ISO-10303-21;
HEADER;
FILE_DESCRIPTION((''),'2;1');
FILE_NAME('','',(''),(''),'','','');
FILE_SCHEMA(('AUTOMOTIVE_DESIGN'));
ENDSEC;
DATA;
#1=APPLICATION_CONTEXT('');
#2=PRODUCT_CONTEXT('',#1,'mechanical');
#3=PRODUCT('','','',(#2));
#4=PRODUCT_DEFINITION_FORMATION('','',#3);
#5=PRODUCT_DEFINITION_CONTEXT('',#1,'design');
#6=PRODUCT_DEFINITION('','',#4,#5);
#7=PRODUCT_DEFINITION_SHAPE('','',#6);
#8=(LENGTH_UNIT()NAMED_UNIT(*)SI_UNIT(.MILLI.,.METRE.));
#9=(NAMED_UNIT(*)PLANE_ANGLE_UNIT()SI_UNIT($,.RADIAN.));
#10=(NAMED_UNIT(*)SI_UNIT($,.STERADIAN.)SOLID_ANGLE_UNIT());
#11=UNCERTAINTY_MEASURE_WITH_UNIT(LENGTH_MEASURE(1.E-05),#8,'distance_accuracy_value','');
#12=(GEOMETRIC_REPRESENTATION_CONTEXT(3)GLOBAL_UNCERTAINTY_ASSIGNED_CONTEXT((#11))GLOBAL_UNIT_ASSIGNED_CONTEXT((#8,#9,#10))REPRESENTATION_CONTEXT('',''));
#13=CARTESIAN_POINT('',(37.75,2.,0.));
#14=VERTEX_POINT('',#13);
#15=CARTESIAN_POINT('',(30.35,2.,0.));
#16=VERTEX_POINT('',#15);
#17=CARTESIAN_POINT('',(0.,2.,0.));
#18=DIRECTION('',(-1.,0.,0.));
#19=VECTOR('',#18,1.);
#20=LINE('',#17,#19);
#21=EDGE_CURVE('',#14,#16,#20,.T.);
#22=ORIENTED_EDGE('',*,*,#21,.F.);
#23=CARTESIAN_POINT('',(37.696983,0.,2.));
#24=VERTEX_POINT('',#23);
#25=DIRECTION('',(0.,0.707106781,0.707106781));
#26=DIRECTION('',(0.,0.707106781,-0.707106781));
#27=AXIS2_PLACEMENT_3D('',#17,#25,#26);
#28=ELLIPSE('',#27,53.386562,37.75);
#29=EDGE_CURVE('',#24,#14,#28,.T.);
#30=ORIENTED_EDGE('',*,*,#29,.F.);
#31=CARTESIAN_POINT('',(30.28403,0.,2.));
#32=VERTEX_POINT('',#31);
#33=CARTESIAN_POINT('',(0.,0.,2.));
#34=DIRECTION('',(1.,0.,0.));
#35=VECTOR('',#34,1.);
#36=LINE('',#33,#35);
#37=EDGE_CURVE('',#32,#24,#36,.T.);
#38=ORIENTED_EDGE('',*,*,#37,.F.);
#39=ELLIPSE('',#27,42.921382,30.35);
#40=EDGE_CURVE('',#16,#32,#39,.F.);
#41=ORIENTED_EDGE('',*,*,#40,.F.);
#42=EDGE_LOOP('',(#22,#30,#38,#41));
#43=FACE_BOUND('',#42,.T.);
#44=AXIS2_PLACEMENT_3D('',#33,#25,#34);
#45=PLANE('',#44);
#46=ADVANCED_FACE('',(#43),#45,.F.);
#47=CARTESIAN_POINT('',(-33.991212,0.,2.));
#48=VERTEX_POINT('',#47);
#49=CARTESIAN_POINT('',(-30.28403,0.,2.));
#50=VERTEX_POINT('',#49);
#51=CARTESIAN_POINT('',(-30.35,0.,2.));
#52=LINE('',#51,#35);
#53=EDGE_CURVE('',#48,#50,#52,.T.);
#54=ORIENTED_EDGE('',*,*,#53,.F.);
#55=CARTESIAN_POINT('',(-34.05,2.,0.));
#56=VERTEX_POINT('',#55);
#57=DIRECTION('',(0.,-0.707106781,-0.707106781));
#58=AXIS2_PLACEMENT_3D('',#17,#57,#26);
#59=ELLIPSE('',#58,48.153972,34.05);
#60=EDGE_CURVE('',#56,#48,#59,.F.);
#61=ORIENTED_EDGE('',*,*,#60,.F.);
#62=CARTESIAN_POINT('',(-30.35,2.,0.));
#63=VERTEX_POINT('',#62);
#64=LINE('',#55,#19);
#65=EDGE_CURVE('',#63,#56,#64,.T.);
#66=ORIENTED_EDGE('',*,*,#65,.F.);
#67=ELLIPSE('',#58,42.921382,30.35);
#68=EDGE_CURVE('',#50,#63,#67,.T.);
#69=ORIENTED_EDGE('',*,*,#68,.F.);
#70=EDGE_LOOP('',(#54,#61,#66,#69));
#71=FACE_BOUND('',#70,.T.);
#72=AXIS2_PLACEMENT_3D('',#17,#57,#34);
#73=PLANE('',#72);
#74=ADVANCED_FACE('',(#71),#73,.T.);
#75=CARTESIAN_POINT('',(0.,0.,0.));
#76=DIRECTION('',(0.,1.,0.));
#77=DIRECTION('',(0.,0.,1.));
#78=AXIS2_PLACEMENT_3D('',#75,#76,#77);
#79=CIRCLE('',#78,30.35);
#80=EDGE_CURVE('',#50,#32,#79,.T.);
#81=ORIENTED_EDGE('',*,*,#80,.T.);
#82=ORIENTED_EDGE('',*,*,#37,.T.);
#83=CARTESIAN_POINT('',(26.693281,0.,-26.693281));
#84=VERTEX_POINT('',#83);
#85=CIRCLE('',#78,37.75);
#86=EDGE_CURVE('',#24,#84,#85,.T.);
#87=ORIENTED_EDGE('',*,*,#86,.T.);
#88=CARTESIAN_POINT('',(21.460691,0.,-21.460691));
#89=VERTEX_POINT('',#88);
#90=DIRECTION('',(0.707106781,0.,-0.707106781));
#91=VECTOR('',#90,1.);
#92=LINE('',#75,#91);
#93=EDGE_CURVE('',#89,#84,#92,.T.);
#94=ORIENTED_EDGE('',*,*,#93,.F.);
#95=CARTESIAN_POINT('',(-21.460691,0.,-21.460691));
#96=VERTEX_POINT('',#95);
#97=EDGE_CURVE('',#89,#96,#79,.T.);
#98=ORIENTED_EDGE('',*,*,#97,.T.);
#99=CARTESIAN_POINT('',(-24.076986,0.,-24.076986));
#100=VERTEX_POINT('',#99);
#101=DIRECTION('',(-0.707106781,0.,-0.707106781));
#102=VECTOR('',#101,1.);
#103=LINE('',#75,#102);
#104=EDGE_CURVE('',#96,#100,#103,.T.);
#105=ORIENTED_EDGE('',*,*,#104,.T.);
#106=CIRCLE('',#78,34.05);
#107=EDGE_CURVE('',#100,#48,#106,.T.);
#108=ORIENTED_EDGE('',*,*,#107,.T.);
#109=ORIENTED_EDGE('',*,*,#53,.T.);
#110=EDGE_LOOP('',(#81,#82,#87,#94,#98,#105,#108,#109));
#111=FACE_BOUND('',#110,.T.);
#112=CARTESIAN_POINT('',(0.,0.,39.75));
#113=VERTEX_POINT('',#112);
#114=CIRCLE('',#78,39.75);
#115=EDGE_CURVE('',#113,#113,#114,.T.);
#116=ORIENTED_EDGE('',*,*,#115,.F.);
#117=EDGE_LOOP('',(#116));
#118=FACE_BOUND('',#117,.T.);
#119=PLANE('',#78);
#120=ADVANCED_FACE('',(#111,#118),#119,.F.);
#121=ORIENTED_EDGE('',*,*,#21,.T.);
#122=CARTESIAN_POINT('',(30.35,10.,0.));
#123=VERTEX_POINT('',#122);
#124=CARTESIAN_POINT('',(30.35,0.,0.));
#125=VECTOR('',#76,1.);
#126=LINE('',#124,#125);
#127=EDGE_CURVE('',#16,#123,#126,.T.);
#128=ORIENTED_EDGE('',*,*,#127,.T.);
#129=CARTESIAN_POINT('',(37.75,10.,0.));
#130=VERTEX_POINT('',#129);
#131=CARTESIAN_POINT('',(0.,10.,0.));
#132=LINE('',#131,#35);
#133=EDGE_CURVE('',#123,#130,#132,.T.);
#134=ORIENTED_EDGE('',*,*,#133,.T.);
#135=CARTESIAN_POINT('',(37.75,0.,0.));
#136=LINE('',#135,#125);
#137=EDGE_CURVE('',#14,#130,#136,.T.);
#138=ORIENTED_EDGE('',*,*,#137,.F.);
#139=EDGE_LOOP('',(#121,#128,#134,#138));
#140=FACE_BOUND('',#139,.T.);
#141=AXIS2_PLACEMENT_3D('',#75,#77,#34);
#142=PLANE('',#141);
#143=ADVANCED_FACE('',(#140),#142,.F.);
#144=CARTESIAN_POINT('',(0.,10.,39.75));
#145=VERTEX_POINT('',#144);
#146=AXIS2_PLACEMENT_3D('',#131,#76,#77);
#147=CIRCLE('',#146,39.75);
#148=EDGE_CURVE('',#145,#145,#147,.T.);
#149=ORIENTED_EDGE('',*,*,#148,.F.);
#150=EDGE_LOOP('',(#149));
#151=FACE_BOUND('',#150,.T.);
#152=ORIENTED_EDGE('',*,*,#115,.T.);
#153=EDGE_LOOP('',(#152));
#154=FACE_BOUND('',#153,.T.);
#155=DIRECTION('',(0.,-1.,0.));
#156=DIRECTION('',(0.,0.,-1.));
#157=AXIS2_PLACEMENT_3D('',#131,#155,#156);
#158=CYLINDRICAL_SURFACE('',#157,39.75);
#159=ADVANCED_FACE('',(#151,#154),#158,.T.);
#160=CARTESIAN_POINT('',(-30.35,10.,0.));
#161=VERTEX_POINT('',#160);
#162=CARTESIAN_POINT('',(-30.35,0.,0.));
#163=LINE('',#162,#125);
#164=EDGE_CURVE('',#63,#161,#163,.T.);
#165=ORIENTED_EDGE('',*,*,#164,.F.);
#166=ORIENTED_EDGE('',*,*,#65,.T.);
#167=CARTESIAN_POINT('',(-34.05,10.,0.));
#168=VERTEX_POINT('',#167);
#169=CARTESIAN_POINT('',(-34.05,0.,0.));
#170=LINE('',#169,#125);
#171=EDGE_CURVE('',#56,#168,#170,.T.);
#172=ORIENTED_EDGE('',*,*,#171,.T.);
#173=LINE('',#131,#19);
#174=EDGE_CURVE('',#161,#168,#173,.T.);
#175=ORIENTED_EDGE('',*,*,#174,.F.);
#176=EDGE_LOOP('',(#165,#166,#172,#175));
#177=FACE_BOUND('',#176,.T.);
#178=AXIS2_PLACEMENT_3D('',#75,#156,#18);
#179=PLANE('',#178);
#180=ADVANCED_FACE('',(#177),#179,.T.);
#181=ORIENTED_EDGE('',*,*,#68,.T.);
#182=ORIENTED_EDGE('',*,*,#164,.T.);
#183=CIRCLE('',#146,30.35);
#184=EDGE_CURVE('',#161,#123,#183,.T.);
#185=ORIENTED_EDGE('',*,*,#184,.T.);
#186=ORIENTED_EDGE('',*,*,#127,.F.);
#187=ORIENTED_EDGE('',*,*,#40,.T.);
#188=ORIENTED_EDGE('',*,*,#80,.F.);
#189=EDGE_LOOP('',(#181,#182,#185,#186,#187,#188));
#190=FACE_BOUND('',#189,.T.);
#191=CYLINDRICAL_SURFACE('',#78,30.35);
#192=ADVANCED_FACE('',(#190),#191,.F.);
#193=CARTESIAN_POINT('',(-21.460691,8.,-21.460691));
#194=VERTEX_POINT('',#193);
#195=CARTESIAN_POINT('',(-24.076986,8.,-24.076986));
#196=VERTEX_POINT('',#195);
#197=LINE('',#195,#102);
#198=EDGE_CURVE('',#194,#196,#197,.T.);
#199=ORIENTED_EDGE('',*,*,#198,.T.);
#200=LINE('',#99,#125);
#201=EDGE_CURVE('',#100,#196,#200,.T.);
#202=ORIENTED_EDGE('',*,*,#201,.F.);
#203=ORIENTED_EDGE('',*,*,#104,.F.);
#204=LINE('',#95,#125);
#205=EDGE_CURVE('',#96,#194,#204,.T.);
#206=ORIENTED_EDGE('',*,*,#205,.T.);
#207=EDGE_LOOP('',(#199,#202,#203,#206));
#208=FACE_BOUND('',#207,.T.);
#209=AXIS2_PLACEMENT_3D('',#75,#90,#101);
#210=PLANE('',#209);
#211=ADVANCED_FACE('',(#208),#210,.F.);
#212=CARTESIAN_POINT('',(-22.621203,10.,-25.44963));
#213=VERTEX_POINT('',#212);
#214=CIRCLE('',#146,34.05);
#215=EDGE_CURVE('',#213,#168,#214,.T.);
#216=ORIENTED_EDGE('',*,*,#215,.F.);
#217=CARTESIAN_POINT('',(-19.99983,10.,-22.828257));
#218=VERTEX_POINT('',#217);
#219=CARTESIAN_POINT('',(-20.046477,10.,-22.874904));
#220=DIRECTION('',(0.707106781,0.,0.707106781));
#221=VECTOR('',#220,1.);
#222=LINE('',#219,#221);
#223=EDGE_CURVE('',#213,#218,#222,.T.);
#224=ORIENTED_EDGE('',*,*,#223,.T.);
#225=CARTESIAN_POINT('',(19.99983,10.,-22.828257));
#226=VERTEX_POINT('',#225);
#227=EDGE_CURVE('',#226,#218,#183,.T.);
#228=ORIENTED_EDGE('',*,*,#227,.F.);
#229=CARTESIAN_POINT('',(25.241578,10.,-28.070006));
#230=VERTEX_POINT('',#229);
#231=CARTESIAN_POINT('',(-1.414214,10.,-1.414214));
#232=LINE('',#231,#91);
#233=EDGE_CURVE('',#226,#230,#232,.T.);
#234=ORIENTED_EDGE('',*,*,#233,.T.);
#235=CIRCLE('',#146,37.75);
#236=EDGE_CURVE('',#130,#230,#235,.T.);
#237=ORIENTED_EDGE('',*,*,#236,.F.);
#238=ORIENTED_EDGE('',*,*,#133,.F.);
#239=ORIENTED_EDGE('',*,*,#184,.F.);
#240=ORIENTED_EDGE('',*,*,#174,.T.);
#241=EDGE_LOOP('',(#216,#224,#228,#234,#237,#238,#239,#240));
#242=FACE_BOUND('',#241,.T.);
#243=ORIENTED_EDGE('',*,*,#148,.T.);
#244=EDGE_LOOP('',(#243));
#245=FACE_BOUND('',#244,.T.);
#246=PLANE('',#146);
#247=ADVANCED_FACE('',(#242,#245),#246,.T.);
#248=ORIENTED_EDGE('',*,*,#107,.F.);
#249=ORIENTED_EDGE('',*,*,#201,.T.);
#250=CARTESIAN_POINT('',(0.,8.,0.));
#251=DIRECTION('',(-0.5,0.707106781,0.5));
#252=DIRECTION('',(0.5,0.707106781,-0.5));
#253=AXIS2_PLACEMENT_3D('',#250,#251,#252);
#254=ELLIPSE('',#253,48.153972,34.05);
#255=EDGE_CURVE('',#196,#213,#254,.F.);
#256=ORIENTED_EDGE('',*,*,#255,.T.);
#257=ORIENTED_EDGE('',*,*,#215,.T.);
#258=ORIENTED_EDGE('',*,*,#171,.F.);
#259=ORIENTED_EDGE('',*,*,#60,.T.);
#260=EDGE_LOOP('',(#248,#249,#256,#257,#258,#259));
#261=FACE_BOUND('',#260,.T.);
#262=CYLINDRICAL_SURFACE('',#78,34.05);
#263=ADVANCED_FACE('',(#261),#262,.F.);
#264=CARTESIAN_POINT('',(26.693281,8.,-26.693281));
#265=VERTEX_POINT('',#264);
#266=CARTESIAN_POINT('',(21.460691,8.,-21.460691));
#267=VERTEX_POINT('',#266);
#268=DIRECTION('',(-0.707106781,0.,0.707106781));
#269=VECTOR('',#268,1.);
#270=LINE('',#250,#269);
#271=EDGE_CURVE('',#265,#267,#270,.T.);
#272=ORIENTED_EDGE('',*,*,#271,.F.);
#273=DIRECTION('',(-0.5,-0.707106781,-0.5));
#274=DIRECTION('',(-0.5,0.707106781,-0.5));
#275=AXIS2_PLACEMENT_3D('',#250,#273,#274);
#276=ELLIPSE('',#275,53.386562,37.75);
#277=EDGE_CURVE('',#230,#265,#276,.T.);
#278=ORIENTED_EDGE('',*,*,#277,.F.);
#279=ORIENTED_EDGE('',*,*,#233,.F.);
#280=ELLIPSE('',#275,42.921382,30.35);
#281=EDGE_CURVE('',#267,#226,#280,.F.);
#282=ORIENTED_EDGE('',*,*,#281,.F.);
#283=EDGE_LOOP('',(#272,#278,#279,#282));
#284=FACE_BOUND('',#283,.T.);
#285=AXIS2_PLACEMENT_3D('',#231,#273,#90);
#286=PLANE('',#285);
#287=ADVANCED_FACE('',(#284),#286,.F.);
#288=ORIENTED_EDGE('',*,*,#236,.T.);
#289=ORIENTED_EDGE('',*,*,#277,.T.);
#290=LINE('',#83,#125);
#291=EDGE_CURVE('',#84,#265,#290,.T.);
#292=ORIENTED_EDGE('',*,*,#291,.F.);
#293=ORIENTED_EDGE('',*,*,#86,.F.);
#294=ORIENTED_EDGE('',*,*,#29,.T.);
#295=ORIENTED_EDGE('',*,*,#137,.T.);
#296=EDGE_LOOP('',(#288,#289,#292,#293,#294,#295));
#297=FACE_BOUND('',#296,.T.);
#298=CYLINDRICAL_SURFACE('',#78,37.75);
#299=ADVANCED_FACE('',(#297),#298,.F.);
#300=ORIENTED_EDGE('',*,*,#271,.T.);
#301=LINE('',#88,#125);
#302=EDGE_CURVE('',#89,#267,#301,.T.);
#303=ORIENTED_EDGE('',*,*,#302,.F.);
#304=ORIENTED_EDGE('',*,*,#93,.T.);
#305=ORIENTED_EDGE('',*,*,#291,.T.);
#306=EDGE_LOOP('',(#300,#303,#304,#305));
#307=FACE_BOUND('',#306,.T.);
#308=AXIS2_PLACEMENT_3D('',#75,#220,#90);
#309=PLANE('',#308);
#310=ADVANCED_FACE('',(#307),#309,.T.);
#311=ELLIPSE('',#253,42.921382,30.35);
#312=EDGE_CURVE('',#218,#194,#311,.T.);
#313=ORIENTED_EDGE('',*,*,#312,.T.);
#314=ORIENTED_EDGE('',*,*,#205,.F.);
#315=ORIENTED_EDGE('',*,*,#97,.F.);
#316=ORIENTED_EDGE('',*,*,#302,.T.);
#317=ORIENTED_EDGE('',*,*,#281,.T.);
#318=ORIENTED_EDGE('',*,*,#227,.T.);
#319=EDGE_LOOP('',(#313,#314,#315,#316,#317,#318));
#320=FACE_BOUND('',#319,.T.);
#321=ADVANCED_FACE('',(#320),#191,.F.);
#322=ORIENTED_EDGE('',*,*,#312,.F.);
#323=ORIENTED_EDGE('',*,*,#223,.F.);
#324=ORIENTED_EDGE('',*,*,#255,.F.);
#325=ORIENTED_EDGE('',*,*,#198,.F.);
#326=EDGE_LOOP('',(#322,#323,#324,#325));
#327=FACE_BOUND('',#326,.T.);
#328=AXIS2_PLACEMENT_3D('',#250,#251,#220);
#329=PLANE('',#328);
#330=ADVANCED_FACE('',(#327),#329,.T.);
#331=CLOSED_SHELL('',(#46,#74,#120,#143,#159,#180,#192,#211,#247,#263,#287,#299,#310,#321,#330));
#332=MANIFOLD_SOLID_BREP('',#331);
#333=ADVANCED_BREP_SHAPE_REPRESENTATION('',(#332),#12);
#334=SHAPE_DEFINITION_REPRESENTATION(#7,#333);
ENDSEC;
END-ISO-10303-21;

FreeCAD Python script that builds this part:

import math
import FreeCAD as App
import Part
import Sketcher
Q = App.Units.Quantity


def edges_at(feature, points):
    """Names of the edges that pass closest to the given points."""
    edges = feature.Shape.Edges
    near = lambda p: min(range(len(edges)), key=lambda i: edges[i].distToShape(Part.Vertex(*p))[0])
    return sorted({f"Edge{near(p) + 1}" for p in points})

doc = App.newDocument("Part")
body = doc.addObject("PartDesign::Body", "Body")

sketch1 = doc.addObject("Sketcher::SketchObject", "Sketch")
body.addObject(sketch1)
sketch1.AttachmentSupport = (doc.XZ_Plane, [""])
sketch1.MapMode = "FlatFace"
sketch1.addGeometry(Part.Circle(App.Vector(0, 0, 0), App.Vector(0, 0, 1), 40), False)
sketch1.addConstraint([
    Sketcher.Constraint("Coincident", 0, 3, -1, 1),
    Sketcher.Constraint("Diameter", 0, 79.5),
])
pad1 = doc.addObject("PartDesign::Pad", "Pad")
body.addObject(pad1)
pad1.Profile = sketch1
pad1.Length = 10
pad1.Reversed = True

sketch2 = doc.addObject("Sketcher::SketchObject", "Sketch001")
body.addObject(sketch2)
sketch2.AttachmentSupport = (doc.XZ_Plane, [""])
sketch2.MapMode = "FlatFace"
sketch2.AttachmentOffset = App.Placement(App.Vector(0, 0, -10), App.Rotation())
sketch2.addGeometry([
    Part.LineSegment(App.Vector(30.4, 0, 0), App.Vector(37.8, 0, 0)),
    Part.ArcOfCircle(Part.Circle(App.Vector(0, 0, 0), App.Vector(0, 0, 1), 37.8), math.radians(-45), math.radians(0)),
    Part.LineSegment(App.Vector(26.7, -26.7, 0), App.Vector(21.5, -21.5, 0)),
    Part.ArcOfCircle(Part.Circle(App.Vector(0, 0, 0), App.Vector(0, 0, 1), 30.4), math.radians(-135), math.radians(-45)),
    Part.LineSegment(App.Vector(-21.5, -21.5, 0), App.Vector(-24.1, -24.1, 0)),
    Part.ArcOfCircle(Part.Circle(App.Vector(0, 0, 0), App.Vector(0, 0, 1), 34), math.radians(180), math.radians(225)),
    Part.LineSegment(App.Vector(-34, 0, 0), App.Vector(-30.4, 0, 0)),
    Part.ArcOfCircle(Part.Circle(App.Vector(0, 0, 0), App.Vector(0, 0, 1), 30.4), math.radians(0), math.radians(180)),
], False)
sketch2.addConstraint([
    Sketcher.Constraint("Coincident", 0, 2, 1, 2),
    Sketcher.Constraint("Coincident", 1, 1, 2, 1),
    Sketcher.Constraint("Coincident", 2, 2, 3, 2),
    Sketcher.Constraint("Coincident", 3, 1, 4, 1),
    Sketcher.Constraint("Coincident", 4, 2, 5, 2),
    Sketcher.Constraint("Coincident", 5, 1, 6, 1),
    Sketcher.Constraint("Coincident", 6, 2, 7, 2),
    Sketcher.Constraint("Coincident", 7, 1, 0, 1),
    Sketcher.Constraint("Horizontal", 0),
    Sketcher.Constraint("Horizontal", 6),
    Sketcher.Constraint("Coincident", 1, 3, -1, 1),
    Sketcher.Constraint("Coincident", 3, 3, -1, 1),
    Sketcher.Constraint("Coincident", 5, 3, -1, 1),
    Sketcher.Constraint("Coincident", 7, 3, -1, 1),
    Sketcher.Constraint("Equal", 3, 7),
    Sketcher.Constraint("PointOnObject", 0, 2, -1),
    Sketcher.Constraint("PointOnObject", 5, 1, -1),
    Sketcher.Constraint("Perpendicular", 2, 4),
    Sketcher.Constraint("Horizontal", 2, 2, 3, 1),
    Sketcher.Constraint("Angle", 2, Q("135 deg")),
    Sketcher.Constraint("Radius", 1, 37.75),
    Sketcher.Constraint("Radius", 3, 30.35),
    Sketcher.Constraint("Radius", 5, 34.05),
    Sketcher.Constraint("DistanceX", -1, 1, 1, 1, 26.693281),
])
pocket1 = doc.addObject("PartDesign::Pocket", "Pocket")
body.addObject(pocket1)
pocket1.Profile = sketch2
pocket1.Length = 10
pocket1.Reversed = True
doc.recompute()

chamfer = doc.addObject("PartDesign::Chamfer", "Chamfer")
body.addObject(chamfer)
chamfer.Base = (pocket1, edges_at(pocket1, [(34.05, 0, 0)]))
chamfer.Size = 2
doc.recompute()

chamfer2 = doc.addObject("PartDesign::Chamfer", "Chamfer001")
body.addObject(chamfer2)
chamfer2.Base = (chamfer, edges_at(chamfer, [(-32.2, 0, 0)]))
chamfer2.Size = 2
doc.recompute()

chamfer3 = doc.addObject("PartDesign::Chamfer", "Chamfer002")
body.addObject(chamfer3)
chamfer3.Base = (chamfer2, edges_at(chamfer2, [(24.077, 10, -24.077)]))
chamfer3.Size = 2
doc.recompute()

chamfer4 = doc.addObject("PartDesign::Chamfer", "Chamfer003")
body.addObject(chamfer4)
chamfer4.Base = (chamfer3, edges_at(chamfer3, [(-22.769, 10, -22.769)]))
chamfer4.Size = 2

doc.recompute()
